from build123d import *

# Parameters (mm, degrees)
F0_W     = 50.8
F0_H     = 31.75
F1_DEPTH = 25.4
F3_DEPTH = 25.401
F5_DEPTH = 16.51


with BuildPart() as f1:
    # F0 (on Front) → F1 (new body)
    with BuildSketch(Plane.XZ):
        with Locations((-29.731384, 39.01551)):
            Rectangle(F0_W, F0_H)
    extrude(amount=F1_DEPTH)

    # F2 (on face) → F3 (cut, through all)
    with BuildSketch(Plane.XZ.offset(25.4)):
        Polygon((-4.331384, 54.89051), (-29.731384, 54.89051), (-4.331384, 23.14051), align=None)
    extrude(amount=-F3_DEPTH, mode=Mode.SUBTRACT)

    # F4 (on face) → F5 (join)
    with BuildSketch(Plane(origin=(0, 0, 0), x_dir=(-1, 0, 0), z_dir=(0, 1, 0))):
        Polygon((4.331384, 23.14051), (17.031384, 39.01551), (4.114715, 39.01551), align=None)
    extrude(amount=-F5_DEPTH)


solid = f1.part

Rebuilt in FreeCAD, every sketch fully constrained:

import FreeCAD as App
import Part
import Sketcher
from FreeCAD import Vector
Q = App.Units.Quantity


def add_polygon(sketch, points):
    """Adds a closed chain of lines whose ends are joined by coincident constraints."""
    first, n = sketch.GeometryCount, len(points)
    for a, b in zip(points, points[1:] + points[:1]):
        sketch.addGeometry(Part.LineSegment(App.Vector(*a, 0), App.Vector(*b, 0)), False)
    for i in range(n):
        sketch.addConstraint(Sketcher.Constraint("Coincident", first + i, 2, first + (i + 1) % n, 1))

doc = App.newDocument("Part")
body = doc.addObject("PartDesign::Body", "Body")

# Sketch on XZ plane
sketch1 = body.newObject("Sketcher::SketchObject", "Sketch")
sketch1.AttachmentSupport = (doc.getObject("XZ_Plane"), [""])
sketch1.MapMode = "FlatFace"
add_polygon(sketch1, [(-55, 55), (-55, 23), (-4, 23), (-4, 55)])  # lines 0-3
sketch1.addConstraint([
    Sketcher.Constraint("Vertical", 0),
    Sketcher.Constraint("Horizontal", 1),
    Sketcher.Constraint("Vertical", 2),
    Sketcher.Constraint("Horizontal", 3),
    Sketcher.Constraint("DistanceX", 1, 1, 1, 2, Q("2 in")),
    Sketcher.Constraint("DistanceY", 0, 2, 0, 1, Q("1.25 in")),
    Sketcher.Constraint("DistanceY", -1, 1, 0, 2, 23.14051),
    Sketcher.Constraint("DistanceX", 0, 2, -1, 1, 55.131384),
])
pad1 = body.newObject("PartDesign::Pad", "Pad")
pad1.Profile = sketch1
pad1.Length = Q("1 in")

# Sketch on XZ plane
sketch2 = body.newObject("Sketcher::SketchObject", "Sketch001")
sketch2.AttachmentSupport = (doc.getObject("XZ_Plane"), [""])
sketch2.MapMode = "FlatFace"
sketch2.AttachmentOffset = App.Placement(Vector(0, 0, 1 * 25.4), App.Rotation())
add_polygon(sketch2, [(-4, 55), (-30, 55), (-4, 23)])  # lines 0-2
sketch2.addConstraint([
    Sketcher.Constraint("Horizontal", 0),
    Sketcher.Constraint("Vertical", 2),
    Sketcher.Constraint("DistanceX", 0, 2, 0, 1, Q("1 in")),
    Sketcher.Constraint("DistanceY", 2, 1, 2, 2, Q("1.25 in")),
    Sketcher.Constraint("DistanceY", -1, 1, 0, 2, 54.89051),
    Sketcher.Constraint("DistanceX", 0, 2, -1, 1, 29.731384),
])
pocket1 = body.newObject("PartDesign::Pocket", "Pocket")
pocket1.Profile = sketch2
pocket1.Type = "ThroughAll"

# Sketch on XZ plane
sketch3 = body.newObject("Sketcher::SketchObject", "Sketch002")
sketch3.AttachmentSupport = (doc.getObject("XZ_Plane"), [""])
sketch3.MapMode = "FlatFace"
add_polygon(sketch3, [(-4, 23), (-17, 39), (-4, 39)])  # lines 0-2
sketch3.addConstraint([
    Sketcher.Constraint("Horizontal", 1),
    Sketcher.Constraint("DistanceX", 0, 2, 2, 2, Q("0.5 in")),
    Sketcher.Constraint("DistanceY", 2, 2, 1, 2, Q("0.625 in")),
    Sketcher.Constraint("DistanceX", 1, 1, 1, 2, 12.916669),
    Sketcher.Constraint("DistanceY", -1, 1, 0, 2, 39.01551),
    Sketcher.Constraint("DistanceX", 0, 2, -1, 1, 17.031384),
])
pad2 = body.newObject("PartDesign::Pad", "Pad001")
pad2.Profile = sketch3
pad2.Length = Q("0.65 in")

doc.recompute()
